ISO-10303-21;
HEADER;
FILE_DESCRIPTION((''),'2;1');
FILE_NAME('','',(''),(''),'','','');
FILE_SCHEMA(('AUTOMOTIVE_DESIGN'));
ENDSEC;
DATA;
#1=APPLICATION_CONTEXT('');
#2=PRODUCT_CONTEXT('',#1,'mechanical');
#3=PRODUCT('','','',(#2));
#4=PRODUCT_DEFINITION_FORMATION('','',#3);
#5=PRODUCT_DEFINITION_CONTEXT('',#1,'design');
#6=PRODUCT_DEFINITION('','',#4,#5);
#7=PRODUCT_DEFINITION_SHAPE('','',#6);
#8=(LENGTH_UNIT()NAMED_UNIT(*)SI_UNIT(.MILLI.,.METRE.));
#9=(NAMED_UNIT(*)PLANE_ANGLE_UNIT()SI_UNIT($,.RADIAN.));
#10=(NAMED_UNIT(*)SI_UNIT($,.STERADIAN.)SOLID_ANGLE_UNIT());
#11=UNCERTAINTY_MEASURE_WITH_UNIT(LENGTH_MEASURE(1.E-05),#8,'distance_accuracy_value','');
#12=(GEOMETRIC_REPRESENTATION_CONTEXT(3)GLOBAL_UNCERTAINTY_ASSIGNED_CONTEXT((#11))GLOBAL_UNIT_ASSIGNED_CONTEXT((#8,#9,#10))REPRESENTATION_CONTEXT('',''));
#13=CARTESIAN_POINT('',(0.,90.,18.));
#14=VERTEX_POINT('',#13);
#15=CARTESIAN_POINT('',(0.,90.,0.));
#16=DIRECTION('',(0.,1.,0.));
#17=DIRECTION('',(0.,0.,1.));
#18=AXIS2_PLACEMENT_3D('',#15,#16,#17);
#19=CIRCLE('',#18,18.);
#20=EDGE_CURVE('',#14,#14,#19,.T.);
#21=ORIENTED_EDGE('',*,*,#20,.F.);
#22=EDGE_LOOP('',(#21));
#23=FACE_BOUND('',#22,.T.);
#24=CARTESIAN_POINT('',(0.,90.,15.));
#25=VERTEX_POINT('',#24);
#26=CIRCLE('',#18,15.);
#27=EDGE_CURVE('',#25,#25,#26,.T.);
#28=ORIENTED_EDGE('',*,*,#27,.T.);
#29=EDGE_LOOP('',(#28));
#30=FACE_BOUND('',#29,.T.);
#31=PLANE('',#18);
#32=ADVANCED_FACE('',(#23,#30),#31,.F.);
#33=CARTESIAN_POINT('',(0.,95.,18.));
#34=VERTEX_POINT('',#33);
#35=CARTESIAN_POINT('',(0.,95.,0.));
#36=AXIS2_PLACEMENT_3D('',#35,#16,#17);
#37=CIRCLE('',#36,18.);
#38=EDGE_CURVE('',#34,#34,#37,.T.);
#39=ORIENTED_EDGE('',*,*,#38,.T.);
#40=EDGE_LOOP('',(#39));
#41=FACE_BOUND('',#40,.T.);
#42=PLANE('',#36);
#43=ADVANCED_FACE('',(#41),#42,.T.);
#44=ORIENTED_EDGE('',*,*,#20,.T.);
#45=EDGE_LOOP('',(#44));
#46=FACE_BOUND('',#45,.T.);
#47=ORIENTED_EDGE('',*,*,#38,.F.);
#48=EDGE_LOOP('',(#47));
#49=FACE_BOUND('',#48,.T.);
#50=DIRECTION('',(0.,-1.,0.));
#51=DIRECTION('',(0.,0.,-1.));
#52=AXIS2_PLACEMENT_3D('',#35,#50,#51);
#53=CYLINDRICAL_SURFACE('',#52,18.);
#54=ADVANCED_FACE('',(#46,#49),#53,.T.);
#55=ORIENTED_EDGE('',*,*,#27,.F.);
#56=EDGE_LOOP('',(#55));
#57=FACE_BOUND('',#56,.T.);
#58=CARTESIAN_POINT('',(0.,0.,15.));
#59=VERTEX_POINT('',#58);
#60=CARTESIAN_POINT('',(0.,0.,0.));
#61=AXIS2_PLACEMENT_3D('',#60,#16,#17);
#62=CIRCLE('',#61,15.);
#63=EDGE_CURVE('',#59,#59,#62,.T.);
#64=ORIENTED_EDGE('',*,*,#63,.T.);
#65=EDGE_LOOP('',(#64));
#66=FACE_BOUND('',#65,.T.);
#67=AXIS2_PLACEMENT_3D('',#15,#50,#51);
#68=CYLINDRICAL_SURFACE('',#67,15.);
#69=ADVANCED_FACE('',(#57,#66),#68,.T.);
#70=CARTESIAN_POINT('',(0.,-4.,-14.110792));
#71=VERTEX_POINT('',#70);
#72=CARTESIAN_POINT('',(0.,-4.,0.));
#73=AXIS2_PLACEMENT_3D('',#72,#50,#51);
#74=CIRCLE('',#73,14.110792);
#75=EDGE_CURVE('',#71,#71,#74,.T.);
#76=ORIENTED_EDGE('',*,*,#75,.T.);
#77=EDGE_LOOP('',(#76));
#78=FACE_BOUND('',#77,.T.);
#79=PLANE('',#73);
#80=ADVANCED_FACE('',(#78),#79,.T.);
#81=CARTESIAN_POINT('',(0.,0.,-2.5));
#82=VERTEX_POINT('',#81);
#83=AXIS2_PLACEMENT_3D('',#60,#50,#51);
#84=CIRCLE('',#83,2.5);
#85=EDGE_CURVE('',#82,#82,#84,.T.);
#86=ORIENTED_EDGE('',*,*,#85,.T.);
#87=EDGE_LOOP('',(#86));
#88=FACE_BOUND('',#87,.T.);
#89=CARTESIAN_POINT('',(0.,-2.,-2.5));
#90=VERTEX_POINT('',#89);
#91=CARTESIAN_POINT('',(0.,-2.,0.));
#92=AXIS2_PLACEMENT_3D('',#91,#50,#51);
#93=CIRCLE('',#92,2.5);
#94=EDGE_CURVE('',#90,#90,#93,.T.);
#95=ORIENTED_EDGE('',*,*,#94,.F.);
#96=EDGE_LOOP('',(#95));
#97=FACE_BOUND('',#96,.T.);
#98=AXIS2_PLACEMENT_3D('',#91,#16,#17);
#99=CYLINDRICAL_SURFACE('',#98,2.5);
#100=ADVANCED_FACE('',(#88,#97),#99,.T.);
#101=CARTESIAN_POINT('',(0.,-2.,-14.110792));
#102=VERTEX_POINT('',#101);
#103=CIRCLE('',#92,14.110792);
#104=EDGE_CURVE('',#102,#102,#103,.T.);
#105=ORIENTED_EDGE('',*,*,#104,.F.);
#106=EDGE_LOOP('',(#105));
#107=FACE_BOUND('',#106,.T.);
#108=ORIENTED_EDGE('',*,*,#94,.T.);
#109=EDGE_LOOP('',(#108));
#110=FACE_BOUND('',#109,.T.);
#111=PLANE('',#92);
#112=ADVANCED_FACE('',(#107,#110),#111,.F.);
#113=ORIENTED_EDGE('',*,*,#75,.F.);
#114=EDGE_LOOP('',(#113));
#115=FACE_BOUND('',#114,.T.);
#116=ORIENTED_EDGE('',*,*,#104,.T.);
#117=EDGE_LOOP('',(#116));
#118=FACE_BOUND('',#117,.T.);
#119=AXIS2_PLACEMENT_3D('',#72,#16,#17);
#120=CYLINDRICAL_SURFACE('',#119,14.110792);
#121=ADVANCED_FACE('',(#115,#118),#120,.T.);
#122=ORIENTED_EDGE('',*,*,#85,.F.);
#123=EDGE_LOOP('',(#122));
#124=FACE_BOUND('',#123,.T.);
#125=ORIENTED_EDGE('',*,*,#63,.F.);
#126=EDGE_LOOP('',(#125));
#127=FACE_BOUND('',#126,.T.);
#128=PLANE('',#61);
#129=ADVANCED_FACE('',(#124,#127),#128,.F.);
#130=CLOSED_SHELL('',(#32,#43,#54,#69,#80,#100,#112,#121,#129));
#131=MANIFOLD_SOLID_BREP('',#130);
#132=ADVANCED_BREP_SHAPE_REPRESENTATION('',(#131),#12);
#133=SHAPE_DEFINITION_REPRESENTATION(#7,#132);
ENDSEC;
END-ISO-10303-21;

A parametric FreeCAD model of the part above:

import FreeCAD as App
import Part
import Sketcher

doc = App.newDocument("Part")
params = doc.addObject("Spreadsheet::Sheet", "Params")
for row, (alias, value) in enumerate([
    ("sketch1_diameter", "30 mm"),
    ("pad1_length", "90 mm"),
    ("sketch2_diameter", "36 mm"),
    ("pad2_length", "5 mm"),
    ("sketch3_diameter", "5 mm"),
    ("pad3_length", "2 mm"),
    ("pad4_length", "2 mm"),
], start=1):
    params.set(f"A{row}", alias)
    params.set(f"B{row}", "=" + value)
    params.setAlias(f"B{row}", alias)

body = doc.addObject("PartDesign::Body", "Body")

sketch1 = body.newObject("Sketcher::SketchObject", "Sketch")
sketch1.AttachmentSupport = (doc.getObject("XZ_Plane"), [""])
sketch1.MapMode = "FlatFace"
sketch1.addGeometry(Part.Circle(App.Vector(0, 0, 0), App.Vector(0, 0, 1), 15), False)
sketch1.addConstraint(Sketcher.Constraint("Coincident", 0, 3, -1, 1))
sketch1.addConstraint(Sketcher.Constraint("Diameter", 0, 30.0))
sketch1.setExpression("Constraints[1]", "Params.sketch1_diameter")
pad1 = body.newObject("PartDesign::Pad", "Pad")
pad1.Profile = sketch1
pad1.setExpression("Length", "Params.pad1_length")
pad1.Reversed = True

sketch2 = body.newObject("Sketcher::SketchObject", "Sketch001")
sketch2.AttachmentSupport = (doc.getObject("XZ_Plane"), [""])
sketch2.MapMode = "FlatFace"
sketch2.AttachmentOffset = App.Placement(App.Vector(0, 0, -90), App.Rotation())
sketch2.addGeometry(Part.Circle(App.Vector(0, 0, 0), App.Vector(0, 0, 1), 18), False)
sketch2.addConstraint(Sketcher.Constraint("Coincident", 0, 3, -1, 1))
sketch2.addConstraint(Sketcher.Constraint("Diameter", 0, 36.0))
sketch2.setExpression("Constraints[1]", "Params.sketch2_diameter")
pad2 = body.newObject("PartDesign::Pad", "Pad001")
pad2.Profile = sketch2
pad2.setExpression("Length", "Params.pad2_length")
pad2.Reversed = True

sketch3 = body.newObject("Sketcher::SketchObject", "Sketch002")
sketch3.AttachmentSupport = (doc.getObject("XZ_Plane"), [""])
sketch3.MapMode = "FlatFace"
sketch3.addGeometry(Part.Circle(App.Vector(0, 0, 0), App.Vector(0, 0, 1), 2.5), False)
sketch3.addConstraint(Sketcher.Constraint("Coincident", 0, 3, -1, 1))
sketch3.addConstraint(Sketcher.Constraint("Diameter", 0, 5.0))
sketch3.setExpression("Constraints[1]", "Params.sketch3_diameter")
pad3 = body.newObject("PartDesign::Pad", "Pad002")
pad3.Profile = sketch3
pad3.setExpression("Length", "Params.pad3_length")

sketch4 = body.newObject("Sketcher::SketchObject", "Sketch003")
sketch4.AttachmentSupport = (doc.getObject("XZ_Plane"), [""])
sketch4.MapMode = "FlatFace"
sketch4.AttachmentOffset = App.Placement(App.Vector(0, 0, 2), App.Rotation())
sketch4.addGeometry(Part.Circle(App.Vector(0, 0, 0), App.Vector(0, 0, 1), 14.110792), False)
sketch4.addConstraint(Sketcher.Constraint("Coincident", 0, 3, -1, 1))
sketch4.addConstraint(Sketcher.Constraint("Diameter", 0, 28.221583))
pad4 = body.newObject("PartDesign::Pad", "Pad003")
pad4.Profile = sketch4
pad4.setExpression("Length", "Params.pad4_length")

doc.recompute()
